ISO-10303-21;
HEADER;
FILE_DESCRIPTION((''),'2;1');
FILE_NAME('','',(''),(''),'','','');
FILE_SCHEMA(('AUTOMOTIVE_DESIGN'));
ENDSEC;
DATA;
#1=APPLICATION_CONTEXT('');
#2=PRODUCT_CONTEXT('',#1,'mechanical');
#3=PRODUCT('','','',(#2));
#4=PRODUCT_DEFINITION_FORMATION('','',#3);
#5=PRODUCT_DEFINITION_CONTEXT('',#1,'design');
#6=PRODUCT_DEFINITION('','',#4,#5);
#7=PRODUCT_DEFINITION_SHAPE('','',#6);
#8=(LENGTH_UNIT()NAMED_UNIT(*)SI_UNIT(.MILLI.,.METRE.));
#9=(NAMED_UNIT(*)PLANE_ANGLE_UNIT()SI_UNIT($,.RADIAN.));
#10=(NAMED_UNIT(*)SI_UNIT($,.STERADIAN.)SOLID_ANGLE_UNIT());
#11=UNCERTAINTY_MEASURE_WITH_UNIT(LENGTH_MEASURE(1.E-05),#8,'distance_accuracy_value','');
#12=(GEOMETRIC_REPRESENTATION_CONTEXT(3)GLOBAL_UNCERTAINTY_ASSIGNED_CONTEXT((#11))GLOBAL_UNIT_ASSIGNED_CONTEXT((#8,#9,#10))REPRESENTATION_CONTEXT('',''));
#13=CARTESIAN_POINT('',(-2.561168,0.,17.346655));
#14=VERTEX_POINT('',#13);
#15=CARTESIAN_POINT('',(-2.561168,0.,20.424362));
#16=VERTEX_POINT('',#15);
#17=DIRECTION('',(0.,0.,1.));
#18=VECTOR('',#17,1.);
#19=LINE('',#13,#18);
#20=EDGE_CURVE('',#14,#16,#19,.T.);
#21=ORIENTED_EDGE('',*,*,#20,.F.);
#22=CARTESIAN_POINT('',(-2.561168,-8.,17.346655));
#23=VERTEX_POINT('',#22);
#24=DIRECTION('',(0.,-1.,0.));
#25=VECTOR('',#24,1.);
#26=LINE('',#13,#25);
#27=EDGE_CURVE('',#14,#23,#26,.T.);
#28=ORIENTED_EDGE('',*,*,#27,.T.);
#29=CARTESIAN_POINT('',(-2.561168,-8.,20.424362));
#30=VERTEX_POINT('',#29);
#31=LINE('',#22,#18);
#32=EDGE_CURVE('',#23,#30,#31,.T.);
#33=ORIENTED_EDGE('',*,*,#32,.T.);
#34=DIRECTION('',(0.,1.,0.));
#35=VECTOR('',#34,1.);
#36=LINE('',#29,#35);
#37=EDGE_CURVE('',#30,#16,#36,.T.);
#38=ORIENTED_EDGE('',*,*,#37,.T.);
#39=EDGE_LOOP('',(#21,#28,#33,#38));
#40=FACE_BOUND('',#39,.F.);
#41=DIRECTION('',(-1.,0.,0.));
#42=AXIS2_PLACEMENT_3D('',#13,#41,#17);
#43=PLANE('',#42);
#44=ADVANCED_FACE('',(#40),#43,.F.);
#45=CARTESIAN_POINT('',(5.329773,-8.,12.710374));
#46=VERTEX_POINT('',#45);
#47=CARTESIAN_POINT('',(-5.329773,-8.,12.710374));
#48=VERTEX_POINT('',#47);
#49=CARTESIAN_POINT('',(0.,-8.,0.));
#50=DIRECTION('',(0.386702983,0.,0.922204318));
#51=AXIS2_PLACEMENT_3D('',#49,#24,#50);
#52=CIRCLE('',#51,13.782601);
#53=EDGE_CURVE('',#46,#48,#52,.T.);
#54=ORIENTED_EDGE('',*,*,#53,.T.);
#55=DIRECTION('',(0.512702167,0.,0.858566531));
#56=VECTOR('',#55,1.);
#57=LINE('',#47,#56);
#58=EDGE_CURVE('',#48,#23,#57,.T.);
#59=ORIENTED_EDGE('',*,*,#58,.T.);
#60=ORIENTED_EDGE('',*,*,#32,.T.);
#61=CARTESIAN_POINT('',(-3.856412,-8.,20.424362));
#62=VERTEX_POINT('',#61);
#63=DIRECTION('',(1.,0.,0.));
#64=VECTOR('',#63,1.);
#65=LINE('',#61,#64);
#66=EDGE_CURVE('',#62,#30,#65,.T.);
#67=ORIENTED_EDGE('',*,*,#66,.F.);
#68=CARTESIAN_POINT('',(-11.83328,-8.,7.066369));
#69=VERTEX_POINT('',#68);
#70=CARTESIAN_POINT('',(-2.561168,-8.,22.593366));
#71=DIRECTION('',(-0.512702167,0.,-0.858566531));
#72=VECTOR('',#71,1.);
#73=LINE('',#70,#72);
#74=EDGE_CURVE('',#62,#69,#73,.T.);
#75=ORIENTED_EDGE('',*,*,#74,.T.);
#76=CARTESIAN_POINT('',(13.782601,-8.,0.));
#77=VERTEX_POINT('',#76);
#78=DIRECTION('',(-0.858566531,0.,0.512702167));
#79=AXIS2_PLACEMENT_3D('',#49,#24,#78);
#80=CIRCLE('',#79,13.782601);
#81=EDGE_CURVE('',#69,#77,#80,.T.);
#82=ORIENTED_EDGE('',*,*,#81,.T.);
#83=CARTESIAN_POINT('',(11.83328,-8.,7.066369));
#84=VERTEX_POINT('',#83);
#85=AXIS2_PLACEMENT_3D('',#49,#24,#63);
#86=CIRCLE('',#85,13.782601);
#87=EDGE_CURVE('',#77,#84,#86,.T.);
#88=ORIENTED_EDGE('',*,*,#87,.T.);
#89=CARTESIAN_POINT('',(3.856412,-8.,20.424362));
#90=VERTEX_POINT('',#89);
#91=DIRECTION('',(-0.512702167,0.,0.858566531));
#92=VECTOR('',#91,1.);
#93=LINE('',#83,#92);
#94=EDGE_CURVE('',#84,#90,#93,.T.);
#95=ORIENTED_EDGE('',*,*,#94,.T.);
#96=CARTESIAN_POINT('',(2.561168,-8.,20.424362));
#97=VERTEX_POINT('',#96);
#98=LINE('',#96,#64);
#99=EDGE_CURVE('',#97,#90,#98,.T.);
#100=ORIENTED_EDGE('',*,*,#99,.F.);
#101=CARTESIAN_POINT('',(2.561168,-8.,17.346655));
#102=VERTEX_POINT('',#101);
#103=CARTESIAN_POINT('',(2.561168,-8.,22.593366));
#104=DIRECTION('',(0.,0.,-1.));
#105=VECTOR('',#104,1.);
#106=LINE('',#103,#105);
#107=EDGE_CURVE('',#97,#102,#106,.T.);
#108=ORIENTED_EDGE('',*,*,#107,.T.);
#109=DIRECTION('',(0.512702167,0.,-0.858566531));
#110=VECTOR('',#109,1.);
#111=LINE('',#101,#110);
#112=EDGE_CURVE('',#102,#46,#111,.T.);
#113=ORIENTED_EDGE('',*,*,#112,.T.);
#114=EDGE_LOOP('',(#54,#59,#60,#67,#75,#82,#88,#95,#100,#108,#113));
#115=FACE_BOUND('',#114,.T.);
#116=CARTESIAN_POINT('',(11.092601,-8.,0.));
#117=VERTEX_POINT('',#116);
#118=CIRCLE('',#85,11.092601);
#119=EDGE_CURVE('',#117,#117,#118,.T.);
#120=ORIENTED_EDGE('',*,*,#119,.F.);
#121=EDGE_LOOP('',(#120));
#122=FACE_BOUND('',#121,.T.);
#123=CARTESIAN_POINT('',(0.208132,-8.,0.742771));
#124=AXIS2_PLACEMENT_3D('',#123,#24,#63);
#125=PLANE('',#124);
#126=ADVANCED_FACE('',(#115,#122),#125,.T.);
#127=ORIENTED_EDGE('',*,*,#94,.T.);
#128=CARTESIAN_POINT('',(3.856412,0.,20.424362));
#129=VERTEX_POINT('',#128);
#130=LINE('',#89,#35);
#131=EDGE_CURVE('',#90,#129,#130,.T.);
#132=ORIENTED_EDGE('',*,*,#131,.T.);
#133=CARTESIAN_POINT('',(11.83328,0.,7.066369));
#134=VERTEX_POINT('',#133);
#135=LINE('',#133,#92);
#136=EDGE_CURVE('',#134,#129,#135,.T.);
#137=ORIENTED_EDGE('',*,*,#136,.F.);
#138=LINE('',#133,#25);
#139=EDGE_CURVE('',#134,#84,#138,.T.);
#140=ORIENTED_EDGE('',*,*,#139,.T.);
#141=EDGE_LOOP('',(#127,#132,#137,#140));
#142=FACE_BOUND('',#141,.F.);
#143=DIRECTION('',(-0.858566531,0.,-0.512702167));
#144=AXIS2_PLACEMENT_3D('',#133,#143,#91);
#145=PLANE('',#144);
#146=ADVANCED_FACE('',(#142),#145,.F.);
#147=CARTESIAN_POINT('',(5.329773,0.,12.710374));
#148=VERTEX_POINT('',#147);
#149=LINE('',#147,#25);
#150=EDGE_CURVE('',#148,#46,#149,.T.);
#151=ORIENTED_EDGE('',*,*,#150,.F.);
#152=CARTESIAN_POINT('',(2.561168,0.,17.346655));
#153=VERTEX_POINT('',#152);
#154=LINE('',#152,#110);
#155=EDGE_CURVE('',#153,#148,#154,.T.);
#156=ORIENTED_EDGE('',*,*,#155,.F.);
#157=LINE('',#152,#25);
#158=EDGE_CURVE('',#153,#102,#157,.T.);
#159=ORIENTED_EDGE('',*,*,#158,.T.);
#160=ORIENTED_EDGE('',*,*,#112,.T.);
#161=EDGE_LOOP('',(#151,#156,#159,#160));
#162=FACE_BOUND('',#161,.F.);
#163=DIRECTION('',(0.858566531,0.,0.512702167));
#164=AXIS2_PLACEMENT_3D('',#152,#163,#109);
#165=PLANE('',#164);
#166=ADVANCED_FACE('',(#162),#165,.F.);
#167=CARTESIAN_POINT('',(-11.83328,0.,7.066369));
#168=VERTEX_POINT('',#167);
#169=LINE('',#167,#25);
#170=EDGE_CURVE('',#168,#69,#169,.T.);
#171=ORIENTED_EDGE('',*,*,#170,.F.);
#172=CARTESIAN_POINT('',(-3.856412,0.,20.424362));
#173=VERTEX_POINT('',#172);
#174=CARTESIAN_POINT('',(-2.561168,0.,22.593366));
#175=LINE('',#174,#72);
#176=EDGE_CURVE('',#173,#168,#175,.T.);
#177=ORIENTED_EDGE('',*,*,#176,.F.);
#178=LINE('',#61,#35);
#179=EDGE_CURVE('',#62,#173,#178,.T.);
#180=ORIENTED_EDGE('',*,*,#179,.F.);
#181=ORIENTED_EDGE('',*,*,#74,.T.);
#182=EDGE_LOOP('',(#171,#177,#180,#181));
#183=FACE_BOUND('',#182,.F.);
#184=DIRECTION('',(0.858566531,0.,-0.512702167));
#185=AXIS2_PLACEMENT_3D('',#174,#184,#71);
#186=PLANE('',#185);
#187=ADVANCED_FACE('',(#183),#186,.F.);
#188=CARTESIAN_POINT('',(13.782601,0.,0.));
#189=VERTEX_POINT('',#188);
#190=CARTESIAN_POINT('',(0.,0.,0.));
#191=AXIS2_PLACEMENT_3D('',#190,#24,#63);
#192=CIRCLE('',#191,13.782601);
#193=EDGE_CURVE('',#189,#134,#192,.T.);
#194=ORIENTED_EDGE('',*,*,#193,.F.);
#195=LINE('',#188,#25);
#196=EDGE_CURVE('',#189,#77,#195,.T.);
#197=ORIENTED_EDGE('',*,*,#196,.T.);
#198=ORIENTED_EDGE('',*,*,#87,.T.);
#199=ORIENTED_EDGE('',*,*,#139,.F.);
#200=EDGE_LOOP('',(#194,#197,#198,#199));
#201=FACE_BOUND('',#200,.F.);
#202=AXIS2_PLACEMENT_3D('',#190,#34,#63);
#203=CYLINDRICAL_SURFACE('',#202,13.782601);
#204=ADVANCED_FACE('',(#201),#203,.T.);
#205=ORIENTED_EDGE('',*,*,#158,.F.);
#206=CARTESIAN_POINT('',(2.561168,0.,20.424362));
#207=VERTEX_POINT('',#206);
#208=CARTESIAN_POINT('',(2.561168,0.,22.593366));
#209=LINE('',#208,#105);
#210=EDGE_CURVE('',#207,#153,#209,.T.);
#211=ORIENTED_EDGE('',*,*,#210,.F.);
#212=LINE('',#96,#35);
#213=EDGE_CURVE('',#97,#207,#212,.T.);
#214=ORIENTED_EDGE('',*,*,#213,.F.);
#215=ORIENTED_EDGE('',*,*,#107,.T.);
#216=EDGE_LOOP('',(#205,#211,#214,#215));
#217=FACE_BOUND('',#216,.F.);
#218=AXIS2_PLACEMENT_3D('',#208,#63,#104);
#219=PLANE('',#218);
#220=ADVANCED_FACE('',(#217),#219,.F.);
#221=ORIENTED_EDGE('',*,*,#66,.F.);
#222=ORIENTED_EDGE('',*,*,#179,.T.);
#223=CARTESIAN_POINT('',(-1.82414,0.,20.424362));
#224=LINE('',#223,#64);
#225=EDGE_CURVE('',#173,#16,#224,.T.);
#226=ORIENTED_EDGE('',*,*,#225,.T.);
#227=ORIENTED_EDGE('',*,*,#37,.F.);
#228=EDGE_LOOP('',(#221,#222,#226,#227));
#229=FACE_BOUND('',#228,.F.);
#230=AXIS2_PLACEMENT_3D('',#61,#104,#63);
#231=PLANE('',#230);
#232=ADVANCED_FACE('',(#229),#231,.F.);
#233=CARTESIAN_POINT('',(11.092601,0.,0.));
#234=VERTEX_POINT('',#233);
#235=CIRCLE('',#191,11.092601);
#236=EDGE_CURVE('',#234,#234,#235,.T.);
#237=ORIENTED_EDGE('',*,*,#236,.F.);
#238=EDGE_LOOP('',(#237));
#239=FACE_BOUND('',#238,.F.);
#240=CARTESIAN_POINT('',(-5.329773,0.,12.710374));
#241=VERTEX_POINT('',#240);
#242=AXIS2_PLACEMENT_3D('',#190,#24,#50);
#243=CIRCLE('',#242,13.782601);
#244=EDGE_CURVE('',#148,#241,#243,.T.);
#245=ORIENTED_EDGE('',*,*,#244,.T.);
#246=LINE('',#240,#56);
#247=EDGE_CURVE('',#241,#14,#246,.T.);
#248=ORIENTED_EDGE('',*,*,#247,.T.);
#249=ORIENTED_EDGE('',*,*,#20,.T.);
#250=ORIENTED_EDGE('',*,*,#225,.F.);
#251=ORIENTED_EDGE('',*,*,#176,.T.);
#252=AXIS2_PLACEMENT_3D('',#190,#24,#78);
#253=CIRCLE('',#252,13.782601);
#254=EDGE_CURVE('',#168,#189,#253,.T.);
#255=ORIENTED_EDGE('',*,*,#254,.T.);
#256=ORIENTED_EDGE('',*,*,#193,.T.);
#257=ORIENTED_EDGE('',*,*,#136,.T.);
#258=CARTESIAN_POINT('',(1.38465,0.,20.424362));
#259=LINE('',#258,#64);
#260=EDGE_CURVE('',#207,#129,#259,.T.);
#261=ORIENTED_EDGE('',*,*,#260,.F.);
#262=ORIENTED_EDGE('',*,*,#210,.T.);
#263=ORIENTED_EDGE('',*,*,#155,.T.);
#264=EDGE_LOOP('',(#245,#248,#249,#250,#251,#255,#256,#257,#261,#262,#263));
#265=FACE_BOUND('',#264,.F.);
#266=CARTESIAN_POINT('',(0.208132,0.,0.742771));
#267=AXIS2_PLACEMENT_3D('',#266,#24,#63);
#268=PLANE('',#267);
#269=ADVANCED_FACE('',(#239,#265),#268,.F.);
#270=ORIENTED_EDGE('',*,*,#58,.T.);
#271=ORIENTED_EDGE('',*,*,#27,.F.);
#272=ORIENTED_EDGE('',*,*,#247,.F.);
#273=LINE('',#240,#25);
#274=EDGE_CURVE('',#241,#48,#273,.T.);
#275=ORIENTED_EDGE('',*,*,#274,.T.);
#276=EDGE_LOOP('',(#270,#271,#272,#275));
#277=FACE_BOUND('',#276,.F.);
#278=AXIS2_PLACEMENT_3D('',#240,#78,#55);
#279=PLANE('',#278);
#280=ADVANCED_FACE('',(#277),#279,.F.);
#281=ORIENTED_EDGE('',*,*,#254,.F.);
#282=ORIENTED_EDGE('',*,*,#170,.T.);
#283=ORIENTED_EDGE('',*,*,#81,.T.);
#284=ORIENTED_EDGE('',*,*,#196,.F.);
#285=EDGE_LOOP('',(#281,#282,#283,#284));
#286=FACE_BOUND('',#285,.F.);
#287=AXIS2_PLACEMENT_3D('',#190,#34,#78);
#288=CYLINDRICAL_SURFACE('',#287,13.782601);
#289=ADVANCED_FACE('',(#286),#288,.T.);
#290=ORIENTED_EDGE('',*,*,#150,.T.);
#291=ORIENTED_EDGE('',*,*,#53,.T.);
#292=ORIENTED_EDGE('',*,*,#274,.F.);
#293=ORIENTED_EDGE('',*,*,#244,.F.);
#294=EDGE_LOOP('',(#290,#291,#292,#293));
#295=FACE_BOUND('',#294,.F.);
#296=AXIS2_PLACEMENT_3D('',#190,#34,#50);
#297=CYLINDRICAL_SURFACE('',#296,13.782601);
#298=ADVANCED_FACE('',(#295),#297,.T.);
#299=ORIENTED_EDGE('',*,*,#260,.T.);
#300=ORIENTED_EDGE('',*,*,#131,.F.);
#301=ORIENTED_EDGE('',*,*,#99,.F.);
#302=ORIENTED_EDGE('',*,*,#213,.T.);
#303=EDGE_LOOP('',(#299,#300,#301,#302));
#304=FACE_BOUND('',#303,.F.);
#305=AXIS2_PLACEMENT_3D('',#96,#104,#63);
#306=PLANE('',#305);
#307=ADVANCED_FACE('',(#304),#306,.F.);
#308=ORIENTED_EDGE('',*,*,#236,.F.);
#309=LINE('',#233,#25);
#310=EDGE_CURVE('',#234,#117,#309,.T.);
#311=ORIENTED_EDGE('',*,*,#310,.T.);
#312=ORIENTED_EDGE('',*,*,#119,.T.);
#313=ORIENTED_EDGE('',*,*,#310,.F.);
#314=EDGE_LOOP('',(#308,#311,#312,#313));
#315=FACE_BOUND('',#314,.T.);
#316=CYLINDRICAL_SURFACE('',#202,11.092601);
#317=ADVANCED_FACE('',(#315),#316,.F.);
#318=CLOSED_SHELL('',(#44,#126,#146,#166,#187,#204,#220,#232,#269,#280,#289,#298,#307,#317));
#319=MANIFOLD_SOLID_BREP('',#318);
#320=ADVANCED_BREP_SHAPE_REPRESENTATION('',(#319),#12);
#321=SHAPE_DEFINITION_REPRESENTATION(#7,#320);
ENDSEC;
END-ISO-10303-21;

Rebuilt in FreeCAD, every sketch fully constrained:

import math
import FreeCAD as App
import Part
import Sketcher


def add_polygon(sketch, points):
    """Adds a closed chain of lines whose ends are joined by coincident constraints."""
    first, n = sketch.GeometryCount, len(points)
    for a, b in zip(points, points[1:] + points[:1]):
        sketch.addGeometry(Part.LineSegment(App.Vector(*a, 0), App.Vector(*b, 0)), False)
    for i in range(n):
        sketch.addConstraint(Sketcher.Constraint("Coincident", first + i, 2, first + (i + 1) % n, 1))

doc = App.newDocument("Part")
body = doc.addObject("PartDesign::Body", "Body")

# Sketch on XZ plane
sketch1 = body.newObject("Sketcher::SketchObject", "Sketch")
sketch1.AttachmentSupport = (doc.getObject("XZ_Plane"), [""])
sketch1.MapMode = "FlatFace"
sketch1.addGeometry([
    Part.ArcOfCircle(Part.Circle(App.Vector(0, 0, 0), App.Vector(0, 0, 1), 13.8), math.radians(149), math.radians(360)),  # 0
    Part.ArcOfCircle(Part.Circle(App.Vector(0, 0, 0), App.Vector(0, 0, 1), 13.8), math.radians(0), math.radians(31)),  # 1
    Part.LineSegment(App.Vector(11.8, 7.1, 0), App.Vector(2.8, 22.1, 0)),  # 2
    Part.LineSegment(App.Vector(2.8, 22.1, 0), App.Vector(2.6, 22.6, 0)),  # 3
    Part.LineSegment(App.Vector(2.6, 22.6, 0), App.Vector(2.6, 17.3, 0)),  # 4
    Part.LineSegment(App.Vector(2.6, 17.3, 0), App.Vector(5.3, 12.7, 0)),  # 5
    Part.ArcOfCircle(Part.Circle(App.Vector(0, 0, 0), App.Vector(0, 0, 1), 13.8), math.radians(67), math.radians(113)),  # 6
    Part.LineSegment(App.Vector(-5.3, 12.7, 0), App.Vector(-2.6, 17.3, 0)),  # 7
    Part.LineSegment(App.Vector(-2.6, 17.3, 0), App.Vector(-2.6, 22.6, 0)),  # 8
    Part.LineSegment(App.Vector(-2.6, 22.6, 0), App.Vector(-11.8, 7.1, 0)),  # 9
    Part.Circle(App.Vector(0, 0, 0), App.Vector(0, 0, 1), 11.1),  # 10
], False)
sketch1.addConstraint([
    Sketcher.Constraint("Tangent", 0, 2, 1, 1),
    Sketcher.Constraint("Tangent", 1, 2, 2, 1),
    Sketcher.Constraint("Coincident", 2, 2, 3, 1),
    Sketcher.Constraint("Coincident", 3, 2, 4, 1),
    Sketcher.Constraint("Coincident", 4, 2, 5, 1),
    Sketcher.Constraint("Coincident", 5, 2, 6, 1),
    Sketcher.Constraint("Coincident", 6, 2, 7, 1),
    Sketcher.Constraint("Coincident", 7, 2, 8, 1),
    Sketcher.Constraint("Coincident", 8, 2, 9, 1),
    Sketcher.Constraint("Tangent", 9, 2, 0, 1),
    Sketcher.Constraint("Vertical", 4),
    Sketcher.Constraint("Vertical", 8),
    Sketcher.Constraint("Coincident", 0, 3, -1, 1),
    Sketcher.Constraint("Coincident", 6, 3, -1, 1),
    Sketcher.Constraint("Coincident", 10, 3, -1, 1),
    Sketcher.Constraint("Equal", 0, 1),
    Sketcher.Constraint("Equal", 1, 6),
    Sketcher.Constraint("Symmetric", 4, 2, 7, 2, -2),
    Sketcher.Constraint("PointOnObject", 0, 2, -1),
    Sketcher.Constraint("Parallel", 2, 3),
    Sketcher.Constraint("Parallel", 3, 5),
    Sketcher.Constraint("Parallel", 7, 9),
    Sketcher.Constraint("Horizontal", 5, 2, 6, 2),
    Sketcher.Constraint("Radius", 0, 13.782601),
    Sketcher.Constraint("Diameter", 10, 22.185202),
    Sketcher.Constraint("DistanceY", 4, 2, 4, 1, 5.246711),
    Sketcher.Constraint("Distance", 2, 17.546042),
    Sketcher.Constraint("Distance", 3, 0.53875),
    Sketcher.Constraint("DistanceX", -1, 1, 1, 2, 11.83328),
])
pad1 = body.newObject("PartDesign::Pad", "Pad")
pad1.Profile = sketch1
pad1.Length = 8

# Sketch on XZ plane
sketch2 = body.newObject("Sketcher::SketchObject", "Sketch001")
sketch2.AttachmentSupport = (doc.getObject("XZ_Plane"), [""])
sketch2.MapMode = "FlatFace"
sketch2.AttachmentOffset = App.Placement(App.Vector(0, 0, 8), App.Rotation())
add_polygon(sketch2, [(2.6, 22.6), (2.6, 20.4), (3.9, 20.4)])  # lines 0-2
add_polygon(sketch2, [(-2.6, 22.6), (-3.9, 20.4), (-2.6, 20.4)])  # lines 3-5
sketch2.addConstraint([
    Sketcher.Constraint("Vertical", 0),
    Sketcher.Constraint("Horizontal", 1),
    Sketcher.Constraint("Horizontal", 4),
    Sketcher.Constraint("Vertical", 5),
    Sketcher.Constraint("Symmetric", 1, 2, 3, 2, -2),
    Sketcher.Constraint("Symmetric", 2, 2, 5, 2, -2),
    Sketcher.Constraint("Distance", 2, 2.526309),
    Sketcher.Constraint("DistanceX", 1, 1, 1, 2, 1.295244),
    Sketcher.Constraint("DistanceX", -1, 1, 0, 2, 2.561168),
    Sketcher.Constraint("DistanceY", -1, 1, 0, 2, 20.424362),
])
pocket1 = body.newObject("PartDesign::Pocket", "Pocket")
pocket1.Profile = sketch2
pocket1.Type = "ThroughAll"

doc.recompute()
